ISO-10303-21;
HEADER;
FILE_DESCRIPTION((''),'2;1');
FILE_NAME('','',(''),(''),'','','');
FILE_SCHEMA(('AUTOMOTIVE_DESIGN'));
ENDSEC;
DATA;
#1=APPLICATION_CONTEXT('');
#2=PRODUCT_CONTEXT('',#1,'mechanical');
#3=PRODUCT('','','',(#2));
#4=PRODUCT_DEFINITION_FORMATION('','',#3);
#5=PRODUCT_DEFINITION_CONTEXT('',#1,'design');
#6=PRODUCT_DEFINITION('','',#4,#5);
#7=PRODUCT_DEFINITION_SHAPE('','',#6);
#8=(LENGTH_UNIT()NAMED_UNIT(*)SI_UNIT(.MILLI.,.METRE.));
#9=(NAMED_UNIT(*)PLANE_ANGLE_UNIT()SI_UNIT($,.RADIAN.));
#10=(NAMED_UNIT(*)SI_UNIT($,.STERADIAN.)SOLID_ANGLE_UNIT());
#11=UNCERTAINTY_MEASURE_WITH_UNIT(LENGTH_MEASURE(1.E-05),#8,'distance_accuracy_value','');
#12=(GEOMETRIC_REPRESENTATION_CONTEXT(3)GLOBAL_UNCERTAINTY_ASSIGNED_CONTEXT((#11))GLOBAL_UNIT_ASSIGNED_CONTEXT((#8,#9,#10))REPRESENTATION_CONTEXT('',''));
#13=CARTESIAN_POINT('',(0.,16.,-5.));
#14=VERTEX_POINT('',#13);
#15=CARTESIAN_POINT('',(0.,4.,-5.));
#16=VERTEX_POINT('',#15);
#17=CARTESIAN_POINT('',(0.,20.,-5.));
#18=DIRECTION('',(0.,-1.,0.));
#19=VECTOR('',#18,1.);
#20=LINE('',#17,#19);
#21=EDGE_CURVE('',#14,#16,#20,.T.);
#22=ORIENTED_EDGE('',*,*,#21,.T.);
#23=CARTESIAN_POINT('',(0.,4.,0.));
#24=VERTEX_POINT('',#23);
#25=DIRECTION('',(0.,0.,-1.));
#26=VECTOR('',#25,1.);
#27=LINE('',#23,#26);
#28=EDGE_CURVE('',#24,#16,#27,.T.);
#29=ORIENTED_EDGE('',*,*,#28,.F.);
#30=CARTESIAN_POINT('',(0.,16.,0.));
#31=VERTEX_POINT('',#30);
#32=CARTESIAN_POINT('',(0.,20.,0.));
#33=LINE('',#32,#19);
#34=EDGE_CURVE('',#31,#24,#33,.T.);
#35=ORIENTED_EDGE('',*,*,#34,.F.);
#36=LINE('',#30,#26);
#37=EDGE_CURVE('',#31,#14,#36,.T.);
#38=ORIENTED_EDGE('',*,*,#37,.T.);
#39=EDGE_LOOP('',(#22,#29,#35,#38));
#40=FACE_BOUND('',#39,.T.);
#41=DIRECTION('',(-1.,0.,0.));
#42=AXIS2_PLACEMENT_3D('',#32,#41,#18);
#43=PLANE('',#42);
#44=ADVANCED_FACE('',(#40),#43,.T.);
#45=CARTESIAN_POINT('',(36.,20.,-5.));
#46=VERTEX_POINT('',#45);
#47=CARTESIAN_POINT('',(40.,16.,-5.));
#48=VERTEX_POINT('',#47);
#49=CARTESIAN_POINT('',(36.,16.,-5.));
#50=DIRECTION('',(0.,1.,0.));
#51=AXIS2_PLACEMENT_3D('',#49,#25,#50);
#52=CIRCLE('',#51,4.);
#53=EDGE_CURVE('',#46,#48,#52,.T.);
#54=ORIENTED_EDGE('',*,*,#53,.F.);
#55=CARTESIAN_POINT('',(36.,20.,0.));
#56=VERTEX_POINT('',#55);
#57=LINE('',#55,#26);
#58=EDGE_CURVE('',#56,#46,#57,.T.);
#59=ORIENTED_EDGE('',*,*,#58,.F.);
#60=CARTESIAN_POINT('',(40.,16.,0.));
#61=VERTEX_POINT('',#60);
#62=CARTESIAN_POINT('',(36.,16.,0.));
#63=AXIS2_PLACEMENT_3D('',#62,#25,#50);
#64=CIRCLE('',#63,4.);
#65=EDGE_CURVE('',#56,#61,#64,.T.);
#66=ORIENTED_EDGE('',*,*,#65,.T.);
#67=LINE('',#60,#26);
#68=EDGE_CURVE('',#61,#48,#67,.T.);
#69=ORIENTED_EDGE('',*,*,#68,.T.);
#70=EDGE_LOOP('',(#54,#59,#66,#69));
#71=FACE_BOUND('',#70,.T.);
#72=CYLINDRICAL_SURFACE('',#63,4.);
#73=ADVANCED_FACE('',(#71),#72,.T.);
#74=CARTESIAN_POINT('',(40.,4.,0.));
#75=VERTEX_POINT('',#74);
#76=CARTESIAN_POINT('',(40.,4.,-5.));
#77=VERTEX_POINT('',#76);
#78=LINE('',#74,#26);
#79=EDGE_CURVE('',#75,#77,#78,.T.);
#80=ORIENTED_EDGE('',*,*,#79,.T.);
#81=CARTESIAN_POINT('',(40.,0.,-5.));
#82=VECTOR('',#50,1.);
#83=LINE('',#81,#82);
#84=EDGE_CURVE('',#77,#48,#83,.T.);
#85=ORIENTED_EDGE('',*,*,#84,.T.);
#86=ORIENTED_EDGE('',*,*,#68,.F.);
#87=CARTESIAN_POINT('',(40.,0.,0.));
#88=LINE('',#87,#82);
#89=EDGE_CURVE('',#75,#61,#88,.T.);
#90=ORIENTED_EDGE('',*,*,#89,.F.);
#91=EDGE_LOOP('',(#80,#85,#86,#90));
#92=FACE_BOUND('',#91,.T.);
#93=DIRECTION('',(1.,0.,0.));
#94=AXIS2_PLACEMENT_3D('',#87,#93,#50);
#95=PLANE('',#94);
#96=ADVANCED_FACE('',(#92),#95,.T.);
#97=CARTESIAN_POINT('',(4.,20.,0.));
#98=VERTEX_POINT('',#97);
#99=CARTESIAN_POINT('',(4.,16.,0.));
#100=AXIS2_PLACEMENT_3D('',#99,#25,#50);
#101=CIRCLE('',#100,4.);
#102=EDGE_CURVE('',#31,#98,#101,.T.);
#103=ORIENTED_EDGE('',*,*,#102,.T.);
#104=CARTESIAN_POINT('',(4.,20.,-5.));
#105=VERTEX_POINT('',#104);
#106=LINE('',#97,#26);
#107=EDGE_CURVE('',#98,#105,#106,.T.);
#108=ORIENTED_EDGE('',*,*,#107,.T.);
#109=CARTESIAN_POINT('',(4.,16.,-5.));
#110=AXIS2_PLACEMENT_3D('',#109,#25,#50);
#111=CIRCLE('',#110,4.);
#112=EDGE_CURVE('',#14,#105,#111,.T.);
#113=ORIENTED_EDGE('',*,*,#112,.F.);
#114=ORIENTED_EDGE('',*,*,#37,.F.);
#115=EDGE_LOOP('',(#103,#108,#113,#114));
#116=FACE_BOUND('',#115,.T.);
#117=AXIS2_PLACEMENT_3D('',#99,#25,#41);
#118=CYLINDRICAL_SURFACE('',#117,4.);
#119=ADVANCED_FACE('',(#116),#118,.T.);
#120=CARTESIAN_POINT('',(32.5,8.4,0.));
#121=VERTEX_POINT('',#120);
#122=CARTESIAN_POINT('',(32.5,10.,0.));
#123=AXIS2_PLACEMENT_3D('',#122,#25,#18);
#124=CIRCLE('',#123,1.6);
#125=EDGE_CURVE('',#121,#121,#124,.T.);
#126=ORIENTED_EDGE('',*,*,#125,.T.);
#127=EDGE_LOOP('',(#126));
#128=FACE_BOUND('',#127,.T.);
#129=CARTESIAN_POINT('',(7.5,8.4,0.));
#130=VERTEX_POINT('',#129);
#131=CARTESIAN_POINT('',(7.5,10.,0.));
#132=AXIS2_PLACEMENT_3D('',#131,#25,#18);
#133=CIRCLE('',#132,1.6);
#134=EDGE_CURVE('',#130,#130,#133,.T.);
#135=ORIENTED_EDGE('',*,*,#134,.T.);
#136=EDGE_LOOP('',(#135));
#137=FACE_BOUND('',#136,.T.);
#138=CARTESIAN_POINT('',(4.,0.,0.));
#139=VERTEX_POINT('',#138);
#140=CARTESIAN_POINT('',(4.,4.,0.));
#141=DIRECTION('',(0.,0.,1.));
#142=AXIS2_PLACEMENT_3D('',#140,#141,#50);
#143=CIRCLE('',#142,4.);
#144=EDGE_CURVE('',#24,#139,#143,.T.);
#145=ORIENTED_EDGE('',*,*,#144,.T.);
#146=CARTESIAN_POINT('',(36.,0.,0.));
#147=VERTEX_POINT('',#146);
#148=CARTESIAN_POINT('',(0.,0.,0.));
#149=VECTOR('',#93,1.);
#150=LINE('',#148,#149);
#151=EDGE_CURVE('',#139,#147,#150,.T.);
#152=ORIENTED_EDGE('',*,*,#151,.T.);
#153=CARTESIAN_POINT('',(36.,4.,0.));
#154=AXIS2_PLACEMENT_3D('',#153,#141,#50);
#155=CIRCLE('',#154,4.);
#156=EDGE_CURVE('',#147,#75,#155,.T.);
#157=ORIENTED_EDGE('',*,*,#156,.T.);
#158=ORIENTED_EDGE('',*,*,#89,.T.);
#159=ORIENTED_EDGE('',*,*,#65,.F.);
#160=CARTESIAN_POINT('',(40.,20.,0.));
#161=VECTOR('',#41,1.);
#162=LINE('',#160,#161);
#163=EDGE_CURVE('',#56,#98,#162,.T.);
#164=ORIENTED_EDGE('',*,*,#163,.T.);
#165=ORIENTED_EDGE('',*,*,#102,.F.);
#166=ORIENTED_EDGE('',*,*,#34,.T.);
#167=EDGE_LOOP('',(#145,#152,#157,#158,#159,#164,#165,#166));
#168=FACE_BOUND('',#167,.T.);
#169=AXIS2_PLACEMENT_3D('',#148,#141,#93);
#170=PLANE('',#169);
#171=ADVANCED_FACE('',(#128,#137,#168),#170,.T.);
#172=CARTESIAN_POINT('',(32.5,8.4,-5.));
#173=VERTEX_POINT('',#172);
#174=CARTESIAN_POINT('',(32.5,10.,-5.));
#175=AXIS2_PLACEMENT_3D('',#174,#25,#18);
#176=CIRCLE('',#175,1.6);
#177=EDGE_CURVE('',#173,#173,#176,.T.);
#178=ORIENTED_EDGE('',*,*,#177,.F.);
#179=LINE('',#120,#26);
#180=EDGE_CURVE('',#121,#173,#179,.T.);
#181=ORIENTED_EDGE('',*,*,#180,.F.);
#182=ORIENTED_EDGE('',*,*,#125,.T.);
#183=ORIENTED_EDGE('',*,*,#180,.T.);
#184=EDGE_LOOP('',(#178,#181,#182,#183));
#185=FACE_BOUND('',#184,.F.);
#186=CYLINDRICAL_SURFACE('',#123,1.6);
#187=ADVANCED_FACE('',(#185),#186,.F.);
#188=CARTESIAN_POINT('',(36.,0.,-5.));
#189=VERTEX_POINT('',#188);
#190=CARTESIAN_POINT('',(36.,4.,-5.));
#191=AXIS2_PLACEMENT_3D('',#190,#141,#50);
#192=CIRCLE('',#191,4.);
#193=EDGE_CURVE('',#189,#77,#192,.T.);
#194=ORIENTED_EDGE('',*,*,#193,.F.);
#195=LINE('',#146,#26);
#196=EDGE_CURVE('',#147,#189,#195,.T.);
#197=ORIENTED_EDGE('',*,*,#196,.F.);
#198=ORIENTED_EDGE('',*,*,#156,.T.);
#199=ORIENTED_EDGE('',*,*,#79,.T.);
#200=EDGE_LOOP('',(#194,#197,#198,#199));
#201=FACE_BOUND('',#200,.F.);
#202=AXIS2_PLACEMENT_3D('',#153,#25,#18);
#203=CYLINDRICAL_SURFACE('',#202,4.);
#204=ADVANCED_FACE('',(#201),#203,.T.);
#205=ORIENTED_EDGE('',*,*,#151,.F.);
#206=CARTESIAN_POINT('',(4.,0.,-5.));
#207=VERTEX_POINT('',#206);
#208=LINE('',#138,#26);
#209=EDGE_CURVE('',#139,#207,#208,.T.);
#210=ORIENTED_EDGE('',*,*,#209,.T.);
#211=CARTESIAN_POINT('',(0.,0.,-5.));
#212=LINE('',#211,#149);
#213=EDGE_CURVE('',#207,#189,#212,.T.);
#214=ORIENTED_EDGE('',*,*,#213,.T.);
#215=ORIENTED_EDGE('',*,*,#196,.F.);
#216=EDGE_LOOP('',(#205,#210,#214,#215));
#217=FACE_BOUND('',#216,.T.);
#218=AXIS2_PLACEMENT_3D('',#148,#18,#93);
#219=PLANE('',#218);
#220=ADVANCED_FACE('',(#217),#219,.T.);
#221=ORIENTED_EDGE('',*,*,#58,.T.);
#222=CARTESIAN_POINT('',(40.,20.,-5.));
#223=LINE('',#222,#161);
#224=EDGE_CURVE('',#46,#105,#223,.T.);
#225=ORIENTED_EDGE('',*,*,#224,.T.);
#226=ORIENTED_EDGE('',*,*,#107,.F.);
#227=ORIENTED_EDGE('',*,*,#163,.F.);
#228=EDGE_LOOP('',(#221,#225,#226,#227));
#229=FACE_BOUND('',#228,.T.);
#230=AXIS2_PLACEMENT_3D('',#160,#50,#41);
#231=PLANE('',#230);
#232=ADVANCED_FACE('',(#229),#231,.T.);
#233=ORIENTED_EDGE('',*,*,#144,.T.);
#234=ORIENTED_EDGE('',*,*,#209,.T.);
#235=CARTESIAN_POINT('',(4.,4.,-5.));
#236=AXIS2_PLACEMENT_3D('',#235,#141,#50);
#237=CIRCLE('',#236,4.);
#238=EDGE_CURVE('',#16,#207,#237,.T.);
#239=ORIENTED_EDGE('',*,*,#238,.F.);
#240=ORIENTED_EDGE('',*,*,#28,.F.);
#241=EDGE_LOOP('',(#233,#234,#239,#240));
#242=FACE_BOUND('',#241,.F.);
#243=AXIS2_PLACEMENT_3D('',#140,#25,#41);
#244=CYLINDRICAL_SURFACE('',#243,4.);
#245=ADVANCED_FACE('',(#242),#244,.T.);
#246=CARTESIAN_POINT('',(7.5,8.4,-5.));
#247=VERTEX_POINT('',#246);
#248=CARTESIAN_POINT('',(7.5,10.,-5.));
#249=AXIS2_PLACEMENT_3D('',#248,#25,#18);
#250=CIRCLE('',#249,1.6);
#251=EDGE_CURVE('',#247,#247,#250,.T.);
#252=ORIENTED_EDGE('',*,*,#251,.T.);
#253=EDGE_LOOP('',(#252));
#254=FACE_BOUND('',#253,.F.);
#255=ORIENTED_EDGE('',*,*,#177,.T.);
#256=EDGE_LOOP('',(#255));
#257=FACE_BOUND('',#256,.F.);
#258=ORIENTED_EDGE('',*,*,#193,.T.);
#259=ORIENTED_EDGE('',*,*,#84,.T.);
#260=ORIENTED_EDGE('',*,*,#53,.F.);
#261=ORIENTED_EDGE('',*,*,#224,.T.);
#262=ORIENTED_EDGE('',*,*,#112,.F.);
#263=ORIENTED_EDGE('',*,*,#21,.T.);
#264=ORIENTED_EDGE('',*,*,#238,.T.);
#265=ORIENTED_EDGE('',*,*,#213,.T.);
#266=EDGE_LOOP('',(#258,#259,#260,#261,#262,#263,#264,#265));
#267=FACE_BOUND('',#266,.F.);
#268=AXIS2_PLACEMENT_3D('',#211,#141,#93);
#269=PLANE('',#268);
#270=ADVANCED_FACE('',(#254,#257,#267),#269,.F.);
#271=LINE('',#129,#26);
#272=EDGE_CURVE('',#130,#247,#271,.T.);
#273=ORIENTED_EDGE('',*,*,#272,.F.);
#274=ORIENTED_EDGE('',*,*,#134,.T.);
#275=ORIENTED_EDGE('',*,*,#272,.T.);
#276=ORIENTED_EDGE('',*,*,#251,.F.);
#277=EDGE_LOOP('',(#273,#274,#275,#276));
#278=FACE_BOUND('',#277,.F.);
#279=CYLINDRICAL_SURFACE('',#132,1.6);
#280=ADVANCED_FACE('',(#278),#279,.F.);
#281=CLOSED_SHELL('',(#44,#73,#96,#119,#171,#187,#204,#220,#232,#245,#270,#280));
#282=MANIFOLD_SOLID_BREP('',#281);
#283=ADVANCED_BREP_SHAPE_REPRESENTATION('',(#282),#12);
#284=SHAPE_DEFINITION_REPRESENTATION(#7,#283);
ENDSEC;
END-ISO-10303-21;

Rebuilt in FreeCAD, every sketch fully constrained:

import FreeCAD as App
import Part
import Sketcher


def edges_at(feature, points):
    """Names of the edges that pass closest to the given points."""
    edges = feature.Shape.Edges
    near = lambda p: min(range(len(edges)), key=lambda i: edges[i].distToShape(Part.Vertex(*p))[0])
    return sorted({f"Edge{near(p) + 1}" for p in points})

doc = App.newDocument("Part")
params = doc.addObject("Spreadsheet::Sheet", "Params")
for row, (alias, value) in enumerate([
    ("sketch1_height", "20 mm"),
    ("sketch1_width", "40 mm"),
    ("pad1_length", "5 mm"),
    ("sketch2_diameter", "3.2 mm"),
    ("hole_diameter", "3.2 mm"),
    ("hole_depth", "25.4 mm"),
    ("fillet_radius", "4 mm"),
], start=1):
    params.set(f"A{row}", alias)
    params.set(f"B{row}", "=" + value)
    params.setAlias(f"B{row}", alias)

body = doc.addObject("PartDesign::Body", "Body")

sketch1 = body.newObject("Sketcher::SketchObject", "Sketch")
sketch1.AttachmentSupport = (doc.getObject("XY_Plane"), [""])
sketch1.MapMode = "FlatFace"
sketch1.addGeometry([
    Part.LineSegment(App.Vector(0, 20, 0), App.Vector(0, 0, 0)),
    Part.LineSegment(App.Vector(0, 0, 0), App.Vector(40, 0, 0)),
    Part.LineSegment(App.Vector(40, 0, 0), App.Vector(40, 20, 0)),
    Part.LineSegment(App.Vector(40, 20, 0), App.Vector(0, 20, 0)),
], False)
sketch1.addConstraint([
    Sketcher.Constraint("Coincident", 0, 2, 1, 1),
    Sketcher.Constraint("Coincident", 1, 2, 2, 1),
    Sketcher.Constraint("Coincident", 2, 2, 3, 1),
    Sketcher.Constraint("Coincident", 3, 2, 0, 1),
    Sketcher.Constraint("Vertical", 0),
    Sketcher.Constraint("Horizontal", 1),
    Sketcher.Constraint("Vertical", 2),
    Sketcher.Constraint("Horizontal", 3),
    Sketcher.Constraint("Coincident", 0, 2, -1, 1),
    Sketcher.Constraint("DistanceY", 0, 2, 0, 1, 20.0),
    Sketcher.Constraint("DistanceX", 1, 1, 1, 2, 40.0),
])
sketch1.setExpression("Constraints[9]", "Params.sketch1_height")
sketch1.setExpression("Constraints[10]", "Params.sketch1_width")
pad1 = body.newObject("PartDesign::Pad", "Pad")
pad1.Profile = sketch1
pad1.setExpression("Length", "Params.pad1_length")
pad1.Reversed = True

sketch2 = body.newObject("Sketcher::SketchObject", "Sketch001")
sketch2.AttachmentSupport = (doc.getObject("XY_Plane"), [""])
sketch2.MapMode = "FlatFace"
sketch2.addGeometry([
    Part.Circle(App.Vector(7.5, 10, 0), App.Vector(0, 0, 1), 1.6),
    Part.Circle(App.Vector(32.5, 10, 0), App.Vector(0, 0, 1), 1.6),
], False)
sketch2.addConstraint([
    Sketcher.Constraint("Equal", 0, 1),
    Sketcher.Constraint("Horizontal", 0, 3, 1, 3),
    Sketcher.Constraint("Diameter", 0, 3.2),
    Sketcher.Constraint("DistanceY", -1, 1, 0, 3, 10.0),
    Sketcher.Constraint("DistanceX", 0, 3, 1, 3, 25.0),
    Sketcher.Constraint("DistanceX", -1, 1, 0, 3, 7.5),
])
sketch2.setExpression("Constraints[2]", "Params.sketch2_diameter")
doc.recompute()
hole = body.newObject("PartDesign::Hole", "Hole")
hole.Profile = sketch2
hole.ThreadType = "None"
hole.setExpression("Diameter", "Params.hole_diameter")
hole.DepthType = "Dimension"
hole.setExpression("Depth", "Params.hole_depth")
hole.DrillPoint = "Angled"
hole.DrillPointAngle = 118
doc.recompute()

fillet = body.newObject("PartDesign::Fillet", "Fillet")
fillet.Base = (hole, edges_at(hole, [
    (40, 20, -2.5),
    (40, 0, -2.5),
    (0, 0, -2.5),
    (0, 20, -2.5),
]))
fillet.setExpression("Radius", "Params.fillet_radius")

doc.recompute()
